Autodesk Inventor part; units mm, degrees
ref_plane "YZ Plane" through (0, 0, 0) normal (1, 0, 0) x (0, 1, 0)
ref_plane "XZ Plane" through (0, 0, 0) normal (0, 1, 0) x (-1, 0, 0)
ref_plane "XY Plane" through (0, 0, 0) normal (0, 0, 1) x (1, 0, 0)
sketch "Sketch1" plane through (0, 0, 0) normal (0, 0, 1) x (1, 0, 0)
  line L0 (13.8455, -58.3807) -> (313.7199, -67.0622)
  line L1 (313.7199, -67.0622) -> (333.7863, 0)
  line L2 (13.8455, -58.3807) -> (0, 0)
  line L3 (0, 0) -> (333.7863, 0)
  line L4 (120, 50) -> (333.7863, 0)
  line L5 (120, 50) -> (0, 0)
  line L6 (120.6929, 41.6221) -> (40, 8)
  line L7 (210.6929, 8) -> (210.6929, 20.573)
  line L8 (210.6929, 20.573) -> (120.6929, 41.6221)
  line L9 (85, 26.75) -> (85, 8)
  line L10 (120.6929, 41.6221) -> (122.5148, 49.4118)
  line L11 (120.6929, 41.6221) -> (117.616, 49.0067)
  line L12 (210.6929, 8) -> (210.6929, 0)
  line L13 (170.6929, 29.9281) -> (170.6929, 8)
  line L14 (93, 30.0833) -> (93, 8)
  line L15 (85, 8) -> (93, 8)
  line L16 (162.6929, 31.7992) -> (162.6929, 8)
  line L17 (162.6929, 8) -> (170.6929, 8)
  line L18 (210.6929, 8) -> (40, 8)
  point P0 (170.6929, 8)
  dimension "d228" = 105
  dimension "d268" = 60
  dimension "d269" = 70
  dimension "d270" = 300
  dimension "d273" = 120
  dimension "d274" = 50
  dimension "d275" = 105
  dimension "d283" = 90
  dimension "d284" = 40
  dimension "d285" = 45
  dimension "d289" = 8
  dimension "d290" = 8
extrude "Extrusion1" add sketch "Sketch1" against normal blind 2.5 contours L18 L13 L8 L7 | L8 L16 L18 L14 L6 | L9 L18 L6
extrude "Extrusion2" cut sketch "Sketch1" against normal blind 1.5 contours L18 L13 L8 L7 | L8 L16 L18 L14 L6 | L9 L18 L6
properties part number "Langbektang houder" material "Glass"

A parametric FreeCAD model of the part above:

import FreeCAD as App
import Part
import Sketcher

V = App.Vector


def add_polygon(sketch, points):
    """Adds a closed chain of lines whose ends are joined by coincident constraints."""
    first, n = sketch.GeometryCount, len(points)
    for a, b in zip(points, points[1:] + points[:1]):
        sketch.addGeometry(Part.LineSegment(App.Vector(*a, 0), App.Vector(*b, 0)), False)
    for i in range(n):
        sketch.addConstraint(Sketcher.Constraint("Coincident", first + i, 2, first + (i + 1) % n, 1))

doc = App.newDocument("Part")
params = doc.addObject("Spreadsheet::Sheet", "Params")
for row, (alias, value) in enumerate([
    ("sketch1_width", "40 mm"),
    ("sketch1_width2", "45 mm"),
    ("sketch1_height", "18.75 mm"),
    ("pad1_length", "2.5 mm"),
    ("sketch2_width", "40 mm"),
    ("sketch2_width2", "45 mm"),
    ("sketch2_height", "18.75 mm"),
    ("pocket1_length", "1.5 mm"),
], start=1):
    params.set(f"A{row}", alias)
    params.set(f"B{row}", "=" + value)
    params.setAlias(f"B{row}", alias)

body = doc.addObject("PartDesign::Body", "Body")
body.AllowCompound = True

sketch1 = body.newObject("Sketcher::SketchObject", "Sketch")
sketch1.AttachmentSupport = (doc.getObject("XY_Plane"), [""])
sketch1.MapMode = "FlatFace"
add_polygon(sketch1, [(170.6929, 8), (210.6929, 8), (210.6929, 20.573), (170.6929, 29.9281)])
add_polygon(sketch1, [(162.692897, 31.799187), (120.6929, 41.6221), (93, 30.0833), (93, 8), (162.6929, 8)])
add_polygon(sketch1, [(85, 8), (84.999988, 26.750028), (40, 8)])
sketch1.addConstraint([
    Sketcher.Constraint("Horizontal", 0),
    Sketcher.Constraint("Vertical", 1),
    Sketcher.Constraint("Vertical", 3),
    Sketcher.Constraint("Vertical", 6),
    Sketcher.Constraint("Horizontal", 7),
    Sketcher.Constraint("Vertical", 8),
    Sketcher.Constraint("Vertical", 9),
    Sketcher.Constraint("Horizontal", 11),
    Sketcher.Constraint("Parallel", 2, 4),
    Sketcher.Constraint("Parallel", 5, 10),
    Sketcher.Constraint("Horizontal", 3, 2, 6, 2),
    Sketcher.Constraint("Horizontal", 7, 2, 10, 2),
    Sketcher.Constraint("DistanceX", 0, 1, 0, 2, 40.0),
    Sketcher.Constraint("DistanceX", 11, 1, 11, 2, 45.0),
    Sketcher.Constraint("DistanceY", -1, 1, 0, 2, 8.0),
    Sketcher.Constraint("DistanceX", -1, 1, 10, 2, 40.0),
    Sketcher.Constraint("DistanceX", 4, 2, 2, 2, 50.0),
    Sketcher.Constraint("DistanceX", 7, 2, 3, 2, 8.0),
    Sketcher.Constraint("DistanceX", 9, 2, 5, 2, 8.0),
    Sketcher.Constraint("DistanceY", 9, 1, 9, 2, 18.75),
    Sketcher.Constraint("DistanceX", 7, 1, 7, 2, 69.693),
    Sketcher.Constraint("DistanceY", 1, 1, 1, 2, 12.573),
    Sketcher.Constraint("DistanceY", 3, 2, 3, 1, 21.928),
    Sketcher.Constraint("DistanceY", 6, 2, 6, 1, 22.0833),
])
sketch1.setExpression("Constraints[24]", "Params.sketch1_width")
sketch1.setExpression("Constraints[25]", "Params.sketch1_width2")
sketch1.setExpression("Constraints[31]", "Params.sketch1_height")
pad1 = body.newObject("PartDesign::Pad", "Pad")
pad1.Profile = sketch1
pad1.setExpression("Length", "Params.pad1_length")
pad1.Reversed = True

sketch2 = body.newObject("Sketcher::SketchObject", "Sketch001")
sketch2.AttachmentSupport = (doc.getObject("XY_Plane"), [""])
sketch2.MapMode = "FlatFace"
add_polygon(sketch2, [(170.6929, 8), (210.6929, 8), (210.6929, 20.573), (170.6929, 29.9281)])
add_polygon(sketch2, [(162.692897, 31.799187), (120.6929, 41.6221), (93, 30.0833), (93, 8), (162.6929, 8)])
add_polygon(sketch2, [(85, 8), (84.999988, 26.750028), (40, 8)])
sketch2.addConstraint([
    Sketcher.Constraint("Horizontal", 0),
    Sketcher.Constraint("Vertical", 1),
    Sketcher.Constraint("Vertical", 3),
    Sketcher.Constraint("Vertical", 6),
    Sketcher.Constraint("Horizontal", 7),
    Sketcher.Constraint("Vertical", 8),
    Sketcher.Constraint("Vertical", 9),
    Sketcher.Constraint("Horizontal", 11),
    Sketcher.Constraint("Parallel", 2, 4),
    Sketcher.Constraint("Parallel", 5, 10),
    Sketcher.Constraint("Horizontal", 3, 2, 6, 2),
    Sketcher.Constraint("Horizontal", 7, 2, 10, 2),
    Sketcher.Constraint("DistanceX", 0, 1, 0, 2, 40.0),
    Sketcher.Constraint("DistanceX", 11, 1, 11, 2, 45.0),
    Sketcher.Constraint("DistanceY", -1, 1, 0, 2, 8.0),
    Sketcher.Constraint("DistanceX", -1, 1, 10, 2, 40.0),
    Sketcher.Constraint("DistanceX", 4, 2, 2, 2, 50.0),
    Sketcher.Constraint("DistanceX", 7, 2, 3, 2, 8.0),
    Sketcher.Constraint("DistanceX", 9, 2, 5, 2, 8.0),
    Sketcher.Constraint("DistanceY", 9, 1, 9, 2, 18.75),
    Sketcher.Constraint("DistanceX", 7, 1, 7, 2, 69.693),
    Sketcher.Constraint("DistanceY", 1, 1, 1, 2, 12.573),
    Sketcher.Constraint("DistanceY", 3, 2, 3, 1, 21.928),
    Sketcher.Constraint("DistanceY", 6, 2, 6, 1, 22.0833),
])
sketch2.setExpression("Constraints[24]", "Params.sketch2_width")
sketch2.setExpression("Constraints[25]", "Params.sketch2_width2")
sketch2.setExpression("Constraints[31]", "Params.sketch2_height")
pocket1 = body.newObject("PartDesign::Pocket", "Pocket")
pocket1.Profile = sketch2
pocket1.setExpression("Length", "Params.pocket1_length")

doc.recompute()
